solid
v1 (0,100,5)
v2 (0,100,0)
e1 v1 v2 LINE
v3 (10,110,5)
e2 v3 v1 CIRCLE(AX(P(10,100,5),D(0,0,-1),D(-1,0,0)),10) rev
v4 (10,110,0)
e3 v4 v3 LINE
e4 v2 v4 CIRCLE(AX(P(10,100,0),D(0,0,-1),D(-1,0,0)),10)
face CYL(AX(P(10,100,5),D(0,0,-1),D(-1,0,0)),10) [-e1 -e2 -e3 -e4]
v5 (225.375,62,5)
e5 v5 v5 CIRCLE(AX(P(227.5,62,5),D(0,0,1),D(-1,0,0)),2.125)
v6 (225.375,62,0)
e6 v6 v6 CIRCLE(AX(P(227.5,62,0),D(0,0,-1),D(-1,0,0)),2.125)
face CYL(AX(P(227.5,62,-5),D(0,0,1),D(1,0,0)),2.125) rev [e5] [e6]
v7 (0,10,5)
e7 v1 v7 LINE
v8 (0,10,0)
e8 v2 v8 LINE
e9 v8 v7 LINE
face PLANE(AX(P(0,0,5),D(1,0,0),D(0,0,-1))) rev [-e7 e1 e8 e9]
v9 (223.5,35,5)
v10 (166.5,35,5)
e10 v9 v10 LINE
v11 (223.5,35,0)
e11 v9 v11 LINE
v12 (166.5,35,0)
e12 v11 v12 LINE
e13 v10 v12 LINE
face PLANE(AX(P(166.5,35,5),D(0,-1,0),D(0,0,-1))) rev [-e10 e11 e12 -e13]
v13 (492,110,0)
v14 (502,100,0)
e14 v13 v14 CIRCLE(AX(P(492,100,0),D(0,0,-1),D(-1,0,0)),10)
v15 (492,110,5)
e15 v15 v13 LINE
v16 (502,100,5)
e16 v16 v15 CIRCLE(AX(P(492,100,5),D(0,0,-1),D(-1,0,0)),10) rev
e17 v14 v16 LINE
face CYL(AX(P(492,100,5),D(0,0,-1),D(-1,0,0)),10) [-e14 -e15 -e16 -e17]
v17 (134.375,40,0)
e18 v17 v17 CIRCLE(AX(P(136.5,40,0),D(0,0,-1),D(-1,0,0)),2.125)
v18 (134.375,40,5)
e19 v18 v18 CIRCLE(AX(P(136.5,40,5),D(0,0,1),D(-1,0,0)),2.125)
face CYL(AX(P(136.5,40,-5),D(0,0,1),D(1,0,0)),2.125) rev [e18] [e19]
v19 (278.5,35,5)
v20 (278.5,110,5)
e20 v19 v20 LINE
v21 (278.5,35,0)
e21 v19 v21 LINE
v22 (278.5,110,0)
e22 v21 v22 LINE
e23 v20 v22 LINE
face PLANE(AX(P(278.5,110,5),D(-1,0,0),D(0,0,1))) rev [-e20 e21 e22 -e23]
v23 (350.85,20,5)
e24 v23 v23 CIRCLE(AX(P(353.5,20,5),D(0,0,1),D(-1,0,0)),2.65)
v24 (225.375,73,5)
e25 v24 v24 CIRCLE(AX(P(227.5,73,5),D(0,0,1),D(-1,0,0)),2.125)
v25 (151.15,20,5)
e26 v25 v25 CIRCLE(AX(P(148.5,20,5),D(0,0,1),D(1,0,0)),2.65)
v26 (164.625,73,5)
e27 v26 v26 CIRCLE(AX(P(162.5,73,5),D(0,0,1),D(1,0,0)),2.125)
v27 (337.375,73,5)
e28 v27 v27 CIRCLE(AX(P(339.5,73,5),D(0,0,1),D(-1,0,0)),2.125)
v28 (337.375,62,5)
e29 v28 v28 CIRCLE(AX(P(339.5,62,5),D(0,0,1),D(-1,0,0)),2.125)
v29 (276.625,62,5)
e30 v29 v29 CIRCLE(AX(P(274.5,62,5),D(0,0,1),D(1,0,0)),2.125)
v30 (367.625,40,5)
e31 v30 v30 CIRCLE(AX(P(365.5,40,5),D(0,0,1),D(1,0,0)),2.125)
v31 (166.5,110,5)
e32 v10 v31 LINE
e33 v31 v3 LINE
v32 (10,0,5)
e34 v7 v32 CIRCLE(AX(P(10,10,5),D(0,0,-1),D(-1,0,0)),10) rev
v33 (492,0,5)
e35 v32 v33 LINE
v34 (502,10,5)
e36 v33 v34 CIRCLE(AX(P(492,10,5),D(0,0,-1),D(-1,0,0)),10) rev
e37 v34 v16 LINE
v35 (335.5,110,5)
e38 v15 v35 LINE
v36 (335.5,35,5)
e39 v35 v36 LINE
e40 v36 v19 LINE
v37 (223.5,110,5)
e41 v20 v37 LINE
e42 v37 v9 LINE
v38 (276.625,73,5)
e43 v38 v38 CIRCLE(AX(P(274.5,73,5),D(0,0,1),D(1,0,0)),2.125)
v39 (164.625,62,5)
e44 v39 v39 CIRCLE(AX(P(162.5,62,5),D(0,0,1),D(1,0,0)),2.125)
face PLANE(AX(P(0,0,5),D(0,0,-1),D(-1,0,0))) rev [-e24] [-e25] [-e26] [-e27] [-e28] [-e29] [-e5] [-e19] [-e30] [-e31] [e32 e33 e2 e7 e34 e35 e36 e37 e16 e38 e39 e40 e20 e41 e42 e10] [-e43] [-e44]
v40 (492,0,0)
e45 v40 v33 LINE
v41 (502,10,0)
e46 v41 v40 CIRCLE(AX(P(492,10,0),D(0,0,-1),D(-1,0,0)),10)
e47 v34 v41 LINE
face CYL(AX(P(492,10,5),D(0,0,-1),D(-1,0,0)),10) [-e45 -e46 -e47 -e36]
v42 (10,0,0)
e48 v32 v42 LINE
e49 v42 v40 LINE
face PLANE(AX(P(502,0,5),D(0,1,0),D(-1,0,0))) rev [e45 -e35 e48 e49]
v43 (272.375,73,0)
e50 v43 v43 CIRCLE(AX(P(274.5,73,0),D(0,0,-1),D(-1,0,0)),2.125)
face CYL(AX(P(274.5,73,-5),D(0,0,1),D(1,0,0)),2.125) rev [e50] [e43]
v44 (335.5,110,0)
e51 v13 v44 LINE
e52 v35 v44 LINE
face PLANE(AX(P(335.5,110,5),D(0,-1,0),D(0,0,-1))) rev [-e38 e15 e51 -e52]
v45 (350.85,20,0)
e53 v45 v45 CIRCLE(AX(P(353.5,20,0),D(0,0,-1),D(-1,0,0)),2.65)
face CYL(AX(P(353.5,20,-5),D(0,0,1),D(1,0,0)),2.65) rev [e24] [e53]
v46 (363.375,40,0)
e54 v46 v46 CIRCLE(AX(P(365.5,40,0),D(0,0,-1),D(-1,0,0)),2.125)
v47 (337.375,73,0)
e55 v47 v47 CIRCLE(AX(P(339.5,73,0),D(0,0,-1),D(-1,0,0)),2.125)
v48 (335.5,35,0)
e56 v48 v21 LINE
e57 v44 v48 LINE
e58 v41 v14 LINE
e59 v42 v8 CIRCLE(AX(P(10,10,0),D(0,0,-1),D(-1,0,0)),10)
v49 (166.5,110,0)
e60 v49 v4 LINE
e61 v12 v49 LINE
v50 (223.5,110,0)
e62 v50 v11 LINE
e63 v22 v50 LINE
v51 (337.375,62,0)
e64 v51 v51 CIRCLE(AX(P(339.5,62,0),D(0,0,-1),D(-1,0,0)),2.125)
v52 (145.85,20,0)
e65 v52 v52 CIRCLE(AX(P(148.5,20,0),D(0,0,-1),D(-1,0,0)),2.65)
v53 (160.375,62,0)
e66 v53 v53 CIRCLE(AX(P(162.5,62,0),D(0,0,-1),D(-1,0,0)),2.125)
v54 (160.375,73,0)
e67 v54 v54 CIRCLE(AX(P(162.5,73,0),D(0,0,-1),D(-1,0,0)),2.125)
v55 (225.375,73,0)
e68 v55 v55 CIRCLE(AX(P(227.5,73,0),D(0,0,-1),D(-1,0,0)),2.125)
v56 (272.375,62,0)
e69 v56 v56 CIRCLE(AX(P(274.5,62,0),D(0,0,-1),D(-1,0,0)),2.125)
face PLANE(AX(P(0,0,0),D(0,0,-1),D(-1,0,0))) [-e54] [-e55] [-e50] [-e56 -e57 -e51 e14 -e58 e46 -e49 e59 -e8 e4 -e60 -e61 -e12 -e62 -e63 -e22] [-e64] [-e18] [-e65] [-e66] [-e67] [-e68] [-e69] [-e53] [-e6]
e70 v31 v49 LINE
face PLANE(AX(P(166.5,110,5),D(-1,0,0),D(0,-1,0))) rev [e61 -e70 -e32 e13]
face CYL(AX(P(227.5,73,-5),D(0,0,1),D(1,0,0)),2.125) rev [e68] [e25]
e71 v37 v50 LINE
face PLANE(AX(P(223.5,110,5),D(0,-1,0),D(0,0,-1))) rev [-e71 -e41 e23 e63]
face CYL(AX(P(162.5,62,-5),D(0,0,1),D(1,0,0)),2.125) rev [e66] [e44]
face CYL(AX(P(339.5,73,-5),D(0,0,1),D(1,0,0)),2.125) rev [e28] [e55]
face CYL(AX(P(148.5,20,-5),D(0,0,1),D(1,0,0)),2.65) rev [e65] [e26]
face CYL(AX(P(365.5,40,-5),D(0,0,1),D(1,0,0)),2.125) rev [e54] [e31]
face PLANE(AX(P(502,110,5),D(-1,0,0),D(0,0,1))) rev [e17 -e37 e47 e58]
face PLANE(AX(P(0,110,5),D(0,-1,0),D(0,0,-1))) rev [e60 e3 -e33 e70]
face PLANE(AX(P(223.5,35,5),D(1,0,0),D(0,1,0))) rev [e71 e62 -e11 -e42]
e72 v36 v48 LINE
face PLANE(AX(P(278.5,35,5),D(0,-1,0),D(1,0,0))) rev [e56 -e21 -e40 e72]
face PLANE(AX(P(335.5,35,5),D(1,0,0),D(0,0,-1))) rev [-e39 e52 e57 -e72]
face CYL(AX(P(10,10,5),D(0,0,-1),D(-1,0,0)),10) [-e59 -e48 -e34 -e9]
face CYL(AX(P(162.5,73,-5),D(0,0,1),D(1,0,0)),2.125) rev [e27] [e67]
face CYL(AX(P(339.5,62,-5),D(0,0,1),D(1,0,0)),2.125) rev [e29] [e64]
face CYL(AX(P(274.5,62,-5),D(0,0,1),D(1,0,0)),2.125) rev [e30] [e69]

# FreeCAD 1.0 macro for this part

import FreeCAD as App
import Part
import Sketcher
from FreeCAD import Vector
Q = App.Units.Quantity


def edges_at(feature, points):
    """Names of the edges that pass closest to the given points."""
    edges = feature.Shape.Edges
    near = lambda p: min(range(len(edges)), key=lambda i: edges[i].distToShape(Part.Vertex(*p))[0])
    return sorted({f"Edge{near(p) + 1}" for p in points})

doc = App.newDocument("Part")
body = doc.addObject("PartDesign::Body", "Body")

# Sketch on XY plane
sketch1 = doc.addObject("Sketcher::SketchObject", "Sketch")
body.addObject(sketch1)
sketch1.AttachmentSupport = (doc.XY_Plane, [""])
sketch1.MapMode = "FlatFace"
sketch1.addGeometry([
    Part.LineSegment(Vector(0, 110, 0), Vector(0, 0, 0)),  # 0
    Part.LineSegment(Vector(0, 0, 0), Vector(502, 0, 0)),  # 1
    Part.LineSegment(Vector(502, 0, 0), Vector(502, 110, 0)),  # 2
    Part.LineSegment(Vector(502, 110, 0), Vector(336, 110, 0)),  # 3
    Part.LineSegment(Vector(336, 110, 0), Vector(336, 35, 0)),  # 4
    Part.LineSegment(Vector(336, 35, 0), Vector(278, 35, 0)),  # 5
    Part.LineSegment(Vector(278, 35, 0), Vector(278, 110, 0)),  # 6
    Part.LineSegment(Vector(278, 110, 0), Vector(224, 110, 0)),  # 7
    Part.LineSegment(Vector(224, 110, 0), Vector(224, 35, 0)),  # 8
    Part.LineSegment(Vector(224, 35, 0), Vector(166, 35, 0)),  # 9
    Part.LineSegment(Vector(166, 35, 0), Vector(166, 110, 0)),  # 10
    Part.LineSegment(Vector(166, 110, 0), Vector(0, 110, 0)),  # 11
], False)
sketch1.addConstraint([
    Sketcher.Constraint("Coincident", 0, 2, 1, 1),
    Sketcher.Constraint("Coincident", 1, 2, 2, 1),
    Sketcher.Constraint("Coincident", 2, 2, 3, 1),
    Sketcher.Constraint("Coincident", 3, 2, 4, 1),
    Sketcher.Constraint("Coincident", 4, 2, 5, 1),
    Sketcher.Constraint("Coincident", 5, 2, 6, 1),
    Sketcher.Constraint("Coincident", 6, 2, 7, 1),
    Sketcher.Constraint("Coincident", 7, 2, 8, 1),
    Sketcher.Constraint("Coincident", 8, 2, 9, 1),
    Sketcher.Constraint("Coincident", 9, 2, 10, 1),
    Sketcher.Constraint("Coincident", 10, 2, 11, 1),
    Sketcher.Constraint("Coincident", 11, 2, 0, 1),
    Sketcher.Constraint("Vertical", 0),
    Sketcher.Constraint("Horizontal", 1),
    Sketcher.Constraint("Vertical", 2),
    Sketcher.Constraint("Horizontal", 3),
    Sketcher.Constraint("Vertical", 4),
    Sketcher.Constraint("Horizontal", 5),
    Sketcher.Constraint("Vertical", 6),
    Sketcher.Constraint("Horizontal", 7),
    Sketcher.Constraint("Vertical", 8),
    Sketcher.Constraint("Horizontal", 9),
    Sketcher.Constraint("Vertical", 10),
    Sketcher.Constraint("Horizontal", 11),
    Sketcher.Constraint("Coincident", 0, 2, -1, 1),
    Sketcher.Constraint("Horizontal", 3, 2, 6, 2),
    Sketcher.Constraint("Horizontal", 5, 2, 8, 2),
    Sketcher.Constraint("Horizontal", 7, 2, 10, 2),
    Sketcher.Constraint("Equal", 5, 9),
    Sketcher.Constraint("Equal", 3, 11),
    Sketcher.Constraint("DistanceX", 1, 1, 1, 2, Q("502 mm")),
    Sketcher.Constraint("DistanceX", 5, 2, 5, 1, Q("57 mm")),
    Sketcher.Constraint("DistanceX", 7, 2, 7, 1, Q("55 mm")),
    Sketcher.Constraint("DistanceY", 0, 2, 0, 1, Q("110 mm")),
    Sketcher.Constraint("DistanceY", 4, 2, 4, 1, Q("75 mm")),
])
pad1 = doc.addObject("PartDesign::Pad", "Pad")
body.addObject(pad1)
pad1.Profile = sketch1
pad1.Length = 5

# Sketch on XY plane
sketch2 = doc.addObject("Sketcher::SketchObject", "Sketch001")
body.addObject(sketch2)
sketch2.AttachmentSupport = (doc.XY_Plane, [""])
sketch2.MapMode = "FlatFace"
sketch2.AttachmentOffset = App.Placement(Vector(0, 0, 5), App.Rotation())
sketch2.addGeometry([
    Part.Circle(Vector(162.5, 73, 0), Vector(0, 0, 1), 2.1),  # 0
    Part.Circle(Vector(162.5, 62, 0), Vector(0, 0, 1), 2.1),  # 1
    Part.Circle(Vector(227.5, 62, 0), Vector(0, 0, 1), 2.1),  # 2
    Part.Circle(Vector(227.5, 73, 0), Vector(0, 0, 1), 2.1),  # 3
    Part.Circle(Vector(274.5, 73, 0), Vector(0, 0, 1), 2.1),  # 4
    Part.Circle(Vector(274.5, 62, 0), Vector(0, 0, 1), 2.1),  # 5
    Part.Circle(Vector(339.5, 62, 0), Vector(0, 0, 1), 2.1),  # 6
    Part.Circle(Vector(339.5, 73, 0), Vector(0, 0, 1), 2.1),  # 7
], False)
sketch2.addConstraint([
    Sketcher.Constraint("Equal", 0, 1),
    Sketcher.Constraint("Equal", 1, 2),
    Sketcher.Constraint("Equal", 2, 3),
    Sketcher.Constraint("Equal", 3, 4),
    Sketcher.Constraint("Equal", 4, 5),
    Sketcher.Constraint("Equal", 5, 6),
    Sketcher.Constraint("Equal", 6, 7),
    Sketcher.Constraint("Horizontal", 1, 3, 2, 3),
    Sketcher.Constraint("Horizontal", 0, 3, 3, 3),
    Sketcher.Constraint("Horizontal", 3, 3, 4, 3),
    Sketcher.Constraint("Horizontal", 2, 3, 5, 3),
    Sketcher.Constraint("Horizontal", 5, 3, 6, 3),
    Sketcher.Constraint("Horizontal", 4, 3, 7, 3),
    Sketcher.Constraint("Vertical", 0, 3, 1, 3),
    Sketcher.Constraint("Vertical", 2, 3, 3, 3),
    Sketcher.Constraint("Vertical", 4, 3, 5, 3),
    Sketcher.Constraint("Vertical", 6, 3, 7, 3),
    Sketcher.Constraint("Diameter", 0, Q("4.25 mm")),
    Sketcher.Constraint("DistanceY", -1, 1, 0, 3, Q("73 mm")),
    Sketcher.Constraint("DistanceY", -1, 1, 1, 3, Q("62 mm")),
    Sketcher.Constraint("DistanceX", 1, 3, 2, 3, Q("65 mm")),
    Sketcher.Constraint("DistanceX", 3, 3, 4, 3, Q("47 mm")),
    Sketcher.Constraint("DistanceX", 5, 3, 6, 3, Q("65 mm")),
    Sketcher.Constraint("DistanceX", -1, 1, 0, 3, Q("162.5 mm")),
])
pocket1 = doc.addObject("PartDesign::Pocket", "Pocket")
body.addObject(pocket1)
pocket1.Profile = sketch2
pocket1.Length = 10
doc.recompute()

fillet = doc.addObject("PartDesign::Fillet", "Fillet")
body.addObject(fillet)
fillet.Base = (pocket1, edges_at(pocket1, [
    (0, 0, 2.5),
    (0, 110, 2.5),
    (502, 110, 2.5),
    (502, 0, 2.5),
]))
fillet.Radius = 10

# Sketch on XY plane
sketch3 = doc.addObject("Sketcher::SketchObject", "Sketch002")
body.addObject(sketch3)
sketch3.AttachmentSupport = (doc.XY_Plane, [""])
sketch3.MapMode = "FlatFace"
sketch3.AttachmentOffset = App.Placement(Vector(0, 0, 5), App.Rotation())
sketch3.addGeometry([
    Part.Circle(Vector(148.5, 20, 0), Vector(0, 0, 1), 2.6),
    Part.Circle(Vector(353.5, 20, 0), Vector(0, 0, 1), 2.6),
], False)
sketch3.addConstraint([
    Sketcher.Constraint("Equal", 0, 1),
    Sketcher.Constraint("Horizontal", 0, 3, 1, 3),
    Sketcher.Constraint("Diameter", 0, Q("5.3 mm")),
    Sketcher.Constraint("DistanceY", -1, 1, 0, 3, Q("20 mm")),
    Sketcher.Constraint("DistanceX", 0, 3, 1, 3, Q("205 mm")),
    Sketcher.Constraint("DistanceX", -1, 1, 0, 3, Q("148.5 mm")),
])
pocket2 = doc.addObject("PartDesign::Pocket", "Pocket001")
body.addObject(pocket2)
pocket2.Profile = sketch3
pocket2.Length = 10

# Sketch on XY plane
sketch4 = doc.addObject("Sketcher::SketchObject", "Sketch003")
body.addObject(sketch4)
sketch4.AttachmentSupport = (doc.XY_Plane, [""])
sketch4.MapMode = "FlatFace"
sketch4.AttachmentOffset = App.Placement(Vector(0, 0, 5), App.Rotation())
sketch4.addGeometry([
    Part.Circle(Vector(365.5, 40, 0), Vector(0, 0, 1), 2.1),
    Part.Circle(Vector(136.5, 40, 0), Vector(0, 0, 1), 2.1),
], False)
sketch4.addConstraint([
    Sketcher.Constraint("Equal", 0, 1),
    Sketcher.Constraint("Horizontal", 0, 3, 1, 3),
    Sketcher.Constraint("Diameter", 0, Q("4.25 mm")),
    Sketcher.Constraint("DistanceY", -1, 1, 0, 3, Q("40 mm")),
    Sketcher.Constraint("DistanceX", 1, 3, 0, 3, Q("229 mm")),
    Sketcher.Constraint("DistanceX", -1, 1, 0, 3, Q("365.5 mm")),
])
pocket3 = doc.addObject("PartDesign::Pocket", "Pocket002")
body.addObject(pocket3)
pocket3.Profile = sketch4
pocket3.Length = 10

doc.recompute()
